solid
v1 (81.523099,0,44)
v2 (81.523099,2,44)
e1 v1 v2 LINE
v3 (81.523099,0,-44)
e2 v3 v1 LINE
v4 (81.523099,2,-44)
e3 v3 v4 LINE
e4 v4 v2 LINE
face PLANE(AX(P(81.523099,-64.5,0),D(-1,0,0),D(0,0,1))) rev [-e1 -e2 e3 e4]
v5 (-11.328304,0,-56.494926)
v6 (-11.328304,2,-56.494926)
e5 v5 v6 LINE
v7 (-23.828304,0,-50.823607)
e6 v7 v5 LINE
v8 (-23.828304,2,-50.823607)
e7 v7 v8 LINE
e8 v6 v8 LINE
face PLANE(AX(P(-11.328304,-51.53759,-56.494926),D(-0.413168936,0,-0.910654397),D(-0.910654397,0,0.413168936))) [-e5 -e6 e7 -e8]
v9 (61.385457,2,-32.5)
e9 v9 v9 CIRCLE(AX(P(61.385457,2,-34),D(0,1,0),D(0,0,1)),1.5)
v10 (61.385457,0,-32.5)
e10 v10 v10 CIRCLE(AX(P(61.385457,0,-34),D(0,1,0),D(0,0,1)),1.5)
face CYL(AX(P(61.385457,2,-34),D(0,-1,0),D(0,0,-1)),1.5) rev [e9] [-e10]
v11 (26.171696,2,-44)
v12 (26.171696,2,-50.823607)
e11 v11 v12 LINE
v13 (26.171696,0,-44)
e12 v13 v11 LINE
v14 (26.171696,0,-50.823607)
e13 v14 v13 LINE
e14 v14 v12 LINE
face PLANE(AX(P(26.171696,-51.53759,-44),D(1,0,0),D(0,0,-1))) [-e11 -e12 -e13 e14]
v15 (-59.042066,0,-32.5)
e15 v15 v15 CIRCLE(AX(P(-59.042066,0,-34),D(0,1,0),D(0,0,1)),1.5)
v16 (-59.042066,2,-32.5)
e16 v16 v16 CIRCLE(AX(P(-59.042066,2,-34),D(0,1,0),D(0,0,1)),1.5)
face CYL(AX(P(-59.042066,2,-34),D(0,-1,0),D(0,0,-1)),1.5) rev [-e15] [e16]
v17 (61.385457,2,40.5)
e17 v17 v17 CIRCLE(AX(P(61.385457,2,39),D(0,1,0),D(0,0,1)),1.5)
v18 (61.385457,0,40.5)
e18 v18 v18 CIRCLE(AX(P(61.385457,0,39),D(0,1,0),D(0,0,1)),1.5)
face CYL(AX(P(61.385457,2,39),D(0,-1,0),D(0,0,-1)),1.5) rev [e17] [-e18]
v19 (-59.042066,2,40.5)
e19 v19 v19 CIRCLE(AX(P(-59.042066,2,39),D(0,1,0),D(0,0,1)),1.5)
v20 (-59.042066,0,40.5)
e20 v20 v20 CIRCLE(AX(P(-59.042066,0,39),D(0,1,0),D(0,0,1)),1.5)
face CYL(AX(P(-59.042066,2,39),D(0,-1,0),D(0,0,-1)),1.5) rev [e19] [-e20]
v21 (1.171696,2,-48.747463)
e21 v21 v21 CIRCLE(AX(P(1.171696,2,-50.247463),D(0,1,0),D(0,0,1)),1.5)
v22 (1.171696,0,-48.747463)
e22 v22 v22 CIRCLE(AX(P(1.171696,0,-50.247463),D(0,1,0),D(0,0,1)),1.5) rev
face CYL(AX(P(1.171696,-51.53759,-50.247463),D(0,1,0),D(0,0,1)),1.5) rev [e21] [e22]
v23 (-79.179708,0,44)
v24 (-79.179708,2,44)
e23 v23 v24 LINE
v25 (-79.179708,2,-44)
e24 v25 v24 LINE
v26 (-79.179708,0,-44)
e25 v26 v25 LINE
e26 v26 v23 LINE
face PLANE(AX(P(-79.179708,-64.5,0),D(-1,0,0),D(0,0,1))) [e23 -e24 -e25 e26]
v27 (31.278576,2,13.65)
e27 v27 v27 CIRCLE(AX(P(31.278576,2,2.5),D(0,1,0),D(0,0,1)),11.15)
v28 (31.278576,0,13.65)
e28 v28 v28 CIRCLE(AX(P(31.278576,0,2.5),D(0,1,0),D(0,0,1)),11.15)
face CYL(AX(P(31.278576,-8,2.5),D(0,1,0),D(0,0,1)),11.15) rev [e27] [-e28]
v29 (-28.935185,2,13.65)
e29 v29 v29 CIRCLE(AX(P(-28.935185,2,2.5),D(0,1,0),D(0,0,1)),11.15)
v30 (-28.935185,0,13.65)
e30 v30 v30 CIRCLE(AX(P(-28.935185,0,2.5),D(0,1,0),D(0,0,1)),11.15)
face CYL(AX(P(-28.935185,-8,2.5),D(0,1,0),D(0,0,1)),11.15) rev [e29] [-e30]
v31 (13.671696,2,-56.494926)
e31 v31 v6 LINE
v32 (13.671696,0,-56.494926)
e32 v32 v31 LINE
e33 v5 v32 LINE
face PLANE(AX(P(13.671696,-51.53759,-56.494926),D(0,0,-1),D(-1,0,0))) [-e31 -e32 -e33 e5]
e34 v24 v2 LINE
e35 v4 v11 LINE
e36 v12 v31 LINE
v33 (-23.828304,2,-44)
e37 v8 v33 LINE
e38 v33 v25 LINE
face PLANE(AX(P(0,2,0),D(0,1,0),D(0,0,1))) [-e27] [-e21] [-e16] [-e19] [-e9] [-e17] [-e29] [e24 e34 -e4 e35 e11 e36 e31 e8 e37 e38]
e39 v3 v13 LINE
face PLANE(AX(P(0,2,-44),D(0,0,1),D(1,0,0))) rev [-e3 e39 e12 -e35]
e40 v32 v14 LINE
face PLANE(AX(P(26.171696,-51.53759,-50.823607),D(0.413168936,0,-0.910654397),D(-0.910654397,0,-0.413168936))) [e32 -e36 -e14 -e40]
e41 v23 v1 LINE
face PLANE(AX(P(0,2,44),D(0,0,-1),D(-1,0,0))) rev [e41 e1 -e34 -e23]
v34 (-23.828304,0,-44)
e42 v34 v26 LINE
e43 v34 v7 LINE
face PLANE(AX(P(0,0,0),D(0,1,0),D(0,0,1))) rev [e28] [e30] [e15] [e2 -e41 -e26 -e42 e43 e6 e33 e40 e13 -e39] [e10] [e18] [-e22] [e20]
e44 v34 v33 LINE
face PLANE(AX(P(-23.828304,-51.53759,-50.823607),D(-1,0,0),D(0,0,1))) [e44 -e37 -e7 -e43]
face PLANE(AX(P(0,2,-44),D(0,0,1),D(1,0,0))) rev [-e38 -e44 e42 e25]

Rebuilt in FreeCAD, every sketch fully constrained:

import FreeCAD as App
import Part
import Sketcher

doc = App.newDocument("Part")
body = doc.addObject("PartDesign::Body", "Body")

# Sketch on XZ plane
sketch1 = doc.addObject("Sketcher::SketchObject", "Sketch")
body.addObject(sketch1)
sketch1.AttachmentSupport = (doc.XZ_Plane, [""])
sketch1.MapMode = "FlatFace"
sketch1.addGeometry([
    Part.LineSegment(App.Vector(-76.679708, -44, 0), App.Vector(-76.679708, 44, 0)),  # 0
    Part.LineSegment(App.Vector(-76.679708, 44, 0), App.Vector(79.023099, 44, 0)),  # 1
    Part.LineSegment(App.Vector(79.023099, 44, 0), App.Vector(79.023099, -44, 0)),  # 2
    Part.LineSegment(App.Vector(79.023099, -44, 0), App.Vector(-76.679708, -44, 0)),  # 3
    Part.Circle(App.Vector(-59.042066, 39, 0), App.Vector(0, 0, 1), 1.5),  # 4
    Part.Circle(App.Vector(61.385457, 39, 0), App.Vector(0, 0, 1), 1.5),  # 5
    Part.Circle(App.Vector(-59.042066, -34, 0), App.Vector(0, 0, 1), 1.5),  # 6
    Part.Circle(App.Vector(61.385457, -34, 0), App.Vector(0, 0, 1), 1.5),  # 7
], False)
sketch1.addConstraint([
    Sketcher.Constraint("Coincident", 0, 2, 1, 1),
    Sketcher.Constraint("Coincident", 1, 2, 2, 1),
    Sketcher.Constraint("Coincident", 2, 2, 3, 1),
    Sketcher.Constraint("Coincident", 3, 2, 0, 1),
    Sketcher.Constraint("Vertical", 0),
    Sketcher.Constraint("Horizontal", 1),
    Sketcher.Constraint("Vertical", 2),
    Sketcher.Constraint("Horizontal", 3),
    Sketcher.Constraint("Equal", 4, 5),
    Sketcher.Constraint("Equal", 5, 6),
    Sketcher.Constraint("Equal", 6, 7),
    Sketcher.Constraint("Horizontal", 4, 3, 5, 3),
    Sketcher.Constraint("Horizontal", 6, 3, 7, 3),
    Sketcher.Constraint("Vertical", 4, 3, 6, 3),
    Sketcher.Constraint("Vertical", 5, 3, 7, 3),
    Sketcher.Constraint("Diameter", 4, 3.0),
    Sketcher.Constraint("DistanceY", 0, 1, 0, 2, 88.0),
    Sketcher.Constraint("DistanceY", -1, 1, 4, 3, 39.0),
    Sketcher.Constraint("DistanceY", 6, 3, -1, 1, 34.0),
    Sketcher.Constraint("DistanceY", -1, 1, 0, 2, 44.0),
    Sketcher.Constraint("DistanceX", -1, 1, 1, 2, 79.023099),
    Sketcher.Constraint("DistanceX", 1, 1, 1, 2, 155.702807),
    Sketcher.Constraint("DistanceX", 4, 3, -1, 1, 59.042066),
    Sketcher.Constraint("DistanceX", -1, 1, 5, 3, 61.385457),
])
pad1 = doc.addObject("PartDesign::Pad", "Pad")
body.addObject(pad1)
pad1.Profile = sketch1
pad1.Length = 2
pad1.Reversed = True

# Sketch on XZ plane
sketch2 = doc.addObject("Sketcher::SketchObject", "Sketch001")
body.addObject(sketch2)
sketch2.AttachmentSupport = (doc.XZ_Plane, [""])
sketch2.MapMode = "FlatFace"
sketch2.AttachmentOffset = App.Placement(App.Vector(0, 0, -2), App.Rotation())
sketch2.addGeometry([
    Part.LineSegment(App.Vector(79.023099, -44, 0), App.Vector(79.023099, 44, 0)),  # 0
    Part.LineSegment(App.Vector(79.023099, 44, 0), App.Vector(84.023099, 44, 0)),  # 1
    Part.LineSegment(App.Vector(84.023099, 44, 0), App.Vector(84.023099, -44, 0)),  # 2
    Part.LineSegment(App.Vector(84.023099, -44, 0), App.Vector(79.023099, -44, 0)),  # 3
    Part.LineSegment(App.Vector(-81.679708, -44, 0), App.Vector(-81.679708, 44, 0)),  # 4
    Part.LineSegment(App.Vector(-81.679708, 44, 0), App.Vector(-76.679708, 44, 0)),  # 5
    Part.LineSegment(App.Vector(-76.679708, 44, 0), App.Vector(-76.679708, -44, 0)),  # 6
    Part.LineSegment(App.Vector(-76.679708, -44, 0), App.Vector(-81.679708, -44, 0)),  # 7
], False)
sketch2.addConstraint([
    Sketcher.Constraint("Coincident", 0, 2, 1, 1),
    Sketcher.Constraint("Coincident", 1, 2, 2, 1),
    Sketcher.Constraint("Coincident", 2, 2, 3, 1),
    Sketcher.Constraint("Coincident", 3, 2, 0, 1),
    Sketcher.Constraint("Coincident", 4, 2, 5, 1),
    Sketcher.Constraint("Coincident", 5, 2, 6, 1),
    Sketcher.Constraint("Coincident", 6, 2, 7, 1),
    Sketcher.Constraint("Coincident", 7, 2, 4, 1),
    Sketcher.Constraint("Vertical", 0),
    Sketcher.Constraint("Horizontal", 1),
    Sketcher.Constraint("Vertical", 2),
    Sketcher.Constraint("Horizontal", 3),
    Sketcher.Constraint("Vertical", 4),
    Sketcher.Constraint("Horizontal", 5),
    Sketcher.Constraint("Vertical", 6),
    Sketcher.Constraint("Horizontal", 7),
    Sketcher.Constraint("Horizontal", 1, 2, 4, 2),
    Sketcher.Constraint("Horizontal", 3, 2, 6, 2),
    Sketcher.Constraint("Equal", 3, 5),
    Sketcher.Constraint("DistanceX", 1, 1, 1, 2, 5.0),
    Sketcher.Constraint("DistanceY", 0, 1, 0, 2, 88.0),
    Sketcher.Constraint("DistanceY", -1, 1, 0, 2, 44.0),
    Sketcher.Constraint("DistanceX", -1, 1, 0, 2, 79.023099),
    Sketcher.Constraint("DistanceX", 4, 2, -1, 1, 81.679708),
])
pad2 = doc.addObject("PartDesign::Pad", "Pad001")
body.addObject(pad2)
pad2.Profile = sketch2
pad2.Length = 2

# Sketch on XZ plane
sketch3 = doc.addObject("Sketcher::SketchObject", "Sketch002")
body.addObject(sketch3)
sketch3.AttachmentSupport = (doc.XZ_Plane, [""])
sketch3.MapMode = "FlatFace"
sketch3.AttachmentOffset = App.Placement(App.Vector(0, 0, -2), App.Rotation())
sketch3.addGeometry([
    Part.Circle(App.Vector(-28.935185, 2.5, 0), App.Vector(0, 0, 1), 11.15),
    Part.Circle(App.Vector(31.278576, 2.5, 0), App.Vector(0, 0, 1), 11.15),
], False)
sketch3.addConstraint([
    Sketcher.Constraint("Equal", 0, 1),
    Sketcher.Constraint("Horizontal", 0, 3, 1, 3),
    Sketcher.Constraint("Diameter", 0, 22.3),
    Sketcher.Constraint("DistanceY", -1, 1, 0, 3, 2.5),
    Sketcher.Constraint("DistanceX", 0, 3, 1, 3, 60.213761),
    Sketcher.Constraint("DistanceX", 0, 3, -1, 1, 28.935185),
])
pocket1 = doc.addObject("PartDesign::Pocket", "Pocket")
body.addObject(pocket1)
pocket1.Profile = sketch3
pocket1.Length = 10
pocket1.Reversed = True

# Sketch on XZ plane
sketch4 = doc.addObject("Sketcher::SketchObject", "Sketch003")
body.addObject(sketch4)
sketch4.AttachmentSupport = (doc.XZ_Plane, [""])
sketch4.MapMode = "FlatFace"
sketch4.AttachmentOffset = App.Placement(App.Vector(0, 0, -2), App.Rotation())
sketch4.addGeometry([
    Part.LineSegment(App.Vector(-23.828304, -44, 0), App.Vector(26.171696, -44, 0)),  # 0
    Part.LineSegment(App.Vector(26.171696, -44, 0), App.Vector(26.171696, -50.823607, 0)),  # 1
    Part.LineSegment(App.Vector(26.171696, -50.823607, 0), App.Vector(13.671696, -56.494926, 0)),  # 2
    Part.LineSegment(App.Vector(13.671696, -56.494926, 0), App.Vector(-11.328304, -56.494926, 0)),  # 3
    Part.LineSegment(App.Vector(-11.328304, -56.494926, 0), App.Vector(-23.828304, -50.823607, 0)),  # 4
    Part.LineSegment(App.Vector(-23.828304, -50.823607, 0), App.Vector(-23.828304, -44, 0)),  # 5
    Part.Circle(App.Vector(1.171696, -50.247463, 0), App.Vector(0, 0, 1), 1.5),  # 6
], False)
sketch4.addConstraint([
    Sketcher.Constraint("Coincident", 0, 2, 1, 1),
    Sketcher.Constraint("Coincident", 1, 2, 2, 1),
    Sketcher.Constraint("Coincident", 2, 2, 3, 1),
    Sketcher.Constraint("Coincident", 3, 2, 4, 1),
    Sketcher.Constraint("Coincident", 4, 2, 5, 1),
    Sketcher.Constraint("Coincident", 5, 2, 0, 1),
    Sketcher.Constraint("Horizontal", 0),
    Sketcher.Constraint("Vertical", 1),
    Sketcher.Constraint("Horizontal", 3),
    Sketcher.Constraint("Vertical", 5),
    Sketcher.Constraint("Horizontal", 1, 2, 4, 2),
    Sketcher.Constraint("Equal", 2, 4),
    Sketcher.Constraint("Diameter", 6, 3.0),
    Sketcher.Constraint("DistanceX", 0, 1, 0, 2, 50.0),
    Sketcher.Constraint("DistanceX", 3, 2, 3, 1, 25.0),
    Sketcher.Constraint("DistanceY", 0, 2, -1, 1, 44.0),
    Sketcher.Constraint("DistanceX", 6, 3, 0, 2, 25.0),
    Sketcher.Constraint("DistanceY", 1, 2, 1, 1, 6.823607),
    Sketcher.Constraint("DistanceY", 2, 2, 1, 2, 5.671319),
    Sketcher.Constraint("DistanceX", -1, 1, 6, 3, 1.171696),
    Sketcher.Constraint("DistanceY", 6, 3, -1, 1, 50.247463),
])
pad3 = doc.addObject("PartDesign::Pad", "Pad002")
body.addObject(pad3)
pad3.Profile = sketch4
pad3.Length = 2

# Sketch on XZ plane
sketch5 = doc.addObject("Sketcher::SketchObject", "Sketch004")
body.addObject(sketch5)
sketch5.AttachmentSupport = (doc.XZ_Plane, [""])
sketch5.MapMode = "FlatFace"
sketch5.AttachmentOffset = App.Placement(App.Vector(0, 0, -2), App.Rotation())
sketch5.addGeometry([
    Part.LineSegment(App.Vector(-81.679708, -44, 0), App.Vector(-81.679708, 44, 0)),  # 0
    Part.LineSegment(App.Vector(-81.679708, 44, 0), App.Vector(-80.179708, 44, 0)),  # 1
    Part.LineSegment(App.Vector(-80.179708, 44, 0), App.Vector(-80.179708, -44, 0)),  # 2
    Part.LineSegment(App.Vector(-80.179708, -44, 0), App.Vector(-81.679708, -44, 0)),  # 3
    Part.LineSegment(App.Vector(82.523099, -44, 0), App.Vector(82.523099, 43.852133, 0)),  # 4
    Part.LineSegment(App.Vector(82.523099, 43.852133, 0), App.Vector(84.023099, 43.852133, 0)),  # 5
    Part.LineSegment(App.Vector(84.023099, 43.852133, 0), App.Vector(84.023099, -44, 0)),  # 6
    Part.LineSegment(App.Vector(84.023099, -44, 0), App.Vector(82.523099, -44, 0)),  # 7
], False)
sketch5.addConstraint([
    Sketcher.Constraint("Coincident", 0, 2, 1, 1),
    Sketcher.Constraint("Coincident", 1, 2, 2, 1),
    Sketcher.Constraint("Coincident", 2, 2, 3, 1),
    Sketcher.Constraint("Coincident", 3, 2, 0, 1),
    Sketcher.Constraint("Coincident", 4, 2, 5, 1),
    Sketcher.Constraint("Coincident", 5, 2, 6, 1),
    Sketcher.Constraint("Coincident", 6, 2, 7, 1),
    Sketcher.Constraint("Coincident", 7, 2, 4, 1),
    Sketcher.Constraint("Vertical", 0),
    Sketcher.Constraint("Horizontal", 1),
    Sketcher.Constraint("Vertical", 2),
    Sketcher.Constraint("Horizontal", 3),
    Sketcher.Constraint("Vertical", 4),
    Sketcher.Constraint("Horizontal", 5),
    Sketcher.Constraint("Vertical", 6),
    Sketcher.Constraint("Horizontal", 7),
    Sketcher.Constraint("Horizontal", 3, 2, 6, 2),
    Sketcher.Constraint("Equal", 3, 5),
    Sketcher.Constraint("DistanceY", 0, 1, 0, 2, 88.0),
    Sketcher.Constraint("DistanceX", 1, 1, 1, 2, 1.5),
    Sketcher.Constraint("DistanceY", -1, 1, 0, 2, 44.0),
    Sketcher.Constraint("DistanceX", -1, 1, 4, 2, 82.523099),
    Sketcher.Constraint("DistanceY", 4, 1, 4, 2, 87.852133),
    Sketcher.Constraint("DistanceX", 0, 2, -1, 1, 81.679708),
])
pocket2 = doc.addObject("PartDesign::Pocket", "Pocket001")
body.addObject(pocket2)
pocket2.Profile = sketch5
pocket2.Length = 10
pocket2.Reversed = True

# Sketch on XZ plane
sketch6 = doc.addObject("Sketcher::SketchObject", "Sketch005")
body.addObject(sketch6)
sketch6.AttachmentSupport = (doc.XZ_Plane, [""])
sketch6.MapMode = "FlatFace"
sketch6.AttachmentOffset = App.Placement(App.Vector(0, 0, -2), App.Rotation())
sketch6.addGeometry([
    Part.LineSegment(App.Vector(84.023099, 44, 0), App.Vector(84.023099, 43.852133, 0)),  # 0
    Part.LineSegment(App.Vector(84.023099, 43.852133, 0), App.Vector(82.523099, 43.852133, 0)),  # 1
    Part.LineSegment(App.Vector(82.523099, 43.852133, 0), App.Vector(82.523099, -44, 0)),  # 2
    Part.LineSegment(App.Vector(82.523099, -44, 0), App.Vector(81.523099, -44, 0)),  # 3
    Part.LineSegment(App.Vector(81.523099, -44, 0), App.Vector(81.523099, 44, 0)),  # 4
    Part.LineSegment(App.Vector(81.523099, 44, 0), App.Vector(84.023099, 44, 0)),  # 5
    Part.LineSegment(App.Vector(-80.179708, -44, 0), App.Vector(-80.179708, 44, 0)),  # 6
    Part.LineSegment(App.Vector(-80.179708, 44, 0), App.Vector(-79.179708, 44, 0)),  # 7
    Part.LineSegment(App.Vector(-79.179708, 44, 0), App.Vector(-79.179708, -44, 0)),  # 8
    Part.LineSegment(App.Vector(-79.179708, -44, 0), App.Vector(-80.179708, -44, 0)),  # 9
], False)
sketch6.addConstraint([
    Sketcher.Constraint("Coincident", 0, 2, 1, 1),
    Sketcher.Constraint("Coincident", 1, 2, 2, 1),
    Sketcher.Constraint("Coincident", 2, 2, 3, 1),
    Sketcher.Constraint("Coincident", 3, 2, 4, 1),
    Sketcher.Constraint("Coincident", 4, 2, 5, 1),
    Sketcher.Constraint("Coincident", 5, 2, 0, 1),
    Sketcher.Constraint("Coincident", 6, 2, 7, 1),
    Sketcher.Constraint("Coincident", 7, 2, 8, 1),
    Sketcher.Constraint("Coincident", 8, 2, 9, 1),
    Sketcher.Constraint("Coincident", 9, 2, 6, 1),
    Sketcher.Constraint("Vertical", 0),
    Sketcher.Constraint("Horizontal", 1),
    Sketcher.Constraint("Vertical", 2),
    Sketcher.Constraint("Horizontal", 3),
    Sketcher.Constraint("Vertical", 4),
    Sketcher.Constraint("Horizontal", 5),
    Sketcher.Constraint("Vertical", 6),
    Sketcher.Constraint("Horizontal", 7),
    Sketcher.Constraint("Vertical", 8),
    Sketcher.Constraint("Horizontal", 9),
    Sketcher.Constraint("Horizontal", 5, 2, 6, 2),
    Sketcher.Constraint("Horizontal", 3, 2, 8, 2),
    Sketcher.Constraint("Equal", 3, 7),
    Sketcher.Constraint("DistanceX", 3, 2, 3, 1, 1.0),
    Sketcher.Constraint("DistanceY", 4, 1, 4, 2, 88.0),
    Sketcher.Constraint("DistanceX", 1, 2, 1, 1, 1.5),
    Sketcher.Constraint("DistanceY", 2, 2, -1, 1, 44.0),
    Sketcher.Constraint("DistanceX", -1, 1, 0, 2, 84.023099),
    Sketcher.Constraint("DistanceY", 0, 2, 0, 1, 0.147867),
    Sketcher.Constraint("DistanceX", 6, 2, -1, 1, 80.179708),
])
pocket3 = doc.addObject("PartDesign::Pocket", "Pocket002")
body.addObject(pocket3)
pocket3.Profile = sketch6
pocket3.Length = 66.5
pocket3.Reversed = True

doc.recompute()
